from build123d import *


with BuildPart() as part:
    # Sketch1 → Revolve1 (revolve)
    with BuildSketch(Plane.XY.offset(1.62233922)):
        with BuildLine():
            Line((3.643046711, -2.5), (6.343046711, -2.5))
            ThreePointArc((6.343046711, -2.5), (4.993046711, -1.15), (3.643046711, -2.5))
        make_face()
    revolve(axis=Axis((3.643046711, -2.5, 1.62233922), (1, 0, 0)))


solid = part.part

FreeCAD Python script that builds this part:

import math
import FreeCAD as App
import Part
import Sketcher

doc = App.newDocument("Part")
body = doc.addObject("PartDesign::Body", "Body")

sketch1 = doc.addObject("Sketcher::SketchObject", "Sketch")
body.addObject(sketch1)
sketch1.AttachmentSupport = (doc.XY_Plane, [""])
sketch1.MapMode = "FlatFace"
sketch1.AttachmentOffset = App.Placement(App.Vector(0, 0, 1.622339), App.Rotation())
sketch1.addGeometry([
    Part.LineSegment(App.Vector(3.6, -2.5, 0), App.Vector(6.3, -2.5, 0)),
    Part.ArcOfCircle(Part.Circle(App.Vector(5, -2.5, 0), App.Vector(0, 0, 1), 1.4), math.radians(0), math.radians(180)),
], False)
sketch1.addGeometry(Part.LineSegment(App.Vector(3.6, -2.5, 0), App.Vector(6.3, -2.5, 0)), True)
sketch1.addConstraint([
    Sketcher.Constraint("Coincident", 0, 1, 1, 2),
    Sketcher.Constraint("Coincident", 1, 1, 0, 2),
    Sketcher.Constraint("Horizontal", 0),
    Sketcher.Constraint("Horizontal", 2),
    Sketcher.Constraint("Coincident", 2, 1, 0, 1),
    Sketcher.Constraint("Horizontal", 1, 3, 0, 1),
    Sketcher.Constraint("Equal", 0, 2),
    Sketcher.Constraint("Radius", 1, 1.35),
    Sketcher.Constraint("DistanceY", 1, 3, -1, 1, 2.5),
    Sketcher.Constraint("DistanceX", -1, 1, 1, 3, 4.993047),
])
revolution = doc.addObject("PartDesign::Revolution", "Revolution")
body.addObject(revolution)
revolution.Profile = sketch1
revolution.ReferenceAxis = (sketch1, ["Axis0"])
revolution.Angle = 360

doc.recompute()
